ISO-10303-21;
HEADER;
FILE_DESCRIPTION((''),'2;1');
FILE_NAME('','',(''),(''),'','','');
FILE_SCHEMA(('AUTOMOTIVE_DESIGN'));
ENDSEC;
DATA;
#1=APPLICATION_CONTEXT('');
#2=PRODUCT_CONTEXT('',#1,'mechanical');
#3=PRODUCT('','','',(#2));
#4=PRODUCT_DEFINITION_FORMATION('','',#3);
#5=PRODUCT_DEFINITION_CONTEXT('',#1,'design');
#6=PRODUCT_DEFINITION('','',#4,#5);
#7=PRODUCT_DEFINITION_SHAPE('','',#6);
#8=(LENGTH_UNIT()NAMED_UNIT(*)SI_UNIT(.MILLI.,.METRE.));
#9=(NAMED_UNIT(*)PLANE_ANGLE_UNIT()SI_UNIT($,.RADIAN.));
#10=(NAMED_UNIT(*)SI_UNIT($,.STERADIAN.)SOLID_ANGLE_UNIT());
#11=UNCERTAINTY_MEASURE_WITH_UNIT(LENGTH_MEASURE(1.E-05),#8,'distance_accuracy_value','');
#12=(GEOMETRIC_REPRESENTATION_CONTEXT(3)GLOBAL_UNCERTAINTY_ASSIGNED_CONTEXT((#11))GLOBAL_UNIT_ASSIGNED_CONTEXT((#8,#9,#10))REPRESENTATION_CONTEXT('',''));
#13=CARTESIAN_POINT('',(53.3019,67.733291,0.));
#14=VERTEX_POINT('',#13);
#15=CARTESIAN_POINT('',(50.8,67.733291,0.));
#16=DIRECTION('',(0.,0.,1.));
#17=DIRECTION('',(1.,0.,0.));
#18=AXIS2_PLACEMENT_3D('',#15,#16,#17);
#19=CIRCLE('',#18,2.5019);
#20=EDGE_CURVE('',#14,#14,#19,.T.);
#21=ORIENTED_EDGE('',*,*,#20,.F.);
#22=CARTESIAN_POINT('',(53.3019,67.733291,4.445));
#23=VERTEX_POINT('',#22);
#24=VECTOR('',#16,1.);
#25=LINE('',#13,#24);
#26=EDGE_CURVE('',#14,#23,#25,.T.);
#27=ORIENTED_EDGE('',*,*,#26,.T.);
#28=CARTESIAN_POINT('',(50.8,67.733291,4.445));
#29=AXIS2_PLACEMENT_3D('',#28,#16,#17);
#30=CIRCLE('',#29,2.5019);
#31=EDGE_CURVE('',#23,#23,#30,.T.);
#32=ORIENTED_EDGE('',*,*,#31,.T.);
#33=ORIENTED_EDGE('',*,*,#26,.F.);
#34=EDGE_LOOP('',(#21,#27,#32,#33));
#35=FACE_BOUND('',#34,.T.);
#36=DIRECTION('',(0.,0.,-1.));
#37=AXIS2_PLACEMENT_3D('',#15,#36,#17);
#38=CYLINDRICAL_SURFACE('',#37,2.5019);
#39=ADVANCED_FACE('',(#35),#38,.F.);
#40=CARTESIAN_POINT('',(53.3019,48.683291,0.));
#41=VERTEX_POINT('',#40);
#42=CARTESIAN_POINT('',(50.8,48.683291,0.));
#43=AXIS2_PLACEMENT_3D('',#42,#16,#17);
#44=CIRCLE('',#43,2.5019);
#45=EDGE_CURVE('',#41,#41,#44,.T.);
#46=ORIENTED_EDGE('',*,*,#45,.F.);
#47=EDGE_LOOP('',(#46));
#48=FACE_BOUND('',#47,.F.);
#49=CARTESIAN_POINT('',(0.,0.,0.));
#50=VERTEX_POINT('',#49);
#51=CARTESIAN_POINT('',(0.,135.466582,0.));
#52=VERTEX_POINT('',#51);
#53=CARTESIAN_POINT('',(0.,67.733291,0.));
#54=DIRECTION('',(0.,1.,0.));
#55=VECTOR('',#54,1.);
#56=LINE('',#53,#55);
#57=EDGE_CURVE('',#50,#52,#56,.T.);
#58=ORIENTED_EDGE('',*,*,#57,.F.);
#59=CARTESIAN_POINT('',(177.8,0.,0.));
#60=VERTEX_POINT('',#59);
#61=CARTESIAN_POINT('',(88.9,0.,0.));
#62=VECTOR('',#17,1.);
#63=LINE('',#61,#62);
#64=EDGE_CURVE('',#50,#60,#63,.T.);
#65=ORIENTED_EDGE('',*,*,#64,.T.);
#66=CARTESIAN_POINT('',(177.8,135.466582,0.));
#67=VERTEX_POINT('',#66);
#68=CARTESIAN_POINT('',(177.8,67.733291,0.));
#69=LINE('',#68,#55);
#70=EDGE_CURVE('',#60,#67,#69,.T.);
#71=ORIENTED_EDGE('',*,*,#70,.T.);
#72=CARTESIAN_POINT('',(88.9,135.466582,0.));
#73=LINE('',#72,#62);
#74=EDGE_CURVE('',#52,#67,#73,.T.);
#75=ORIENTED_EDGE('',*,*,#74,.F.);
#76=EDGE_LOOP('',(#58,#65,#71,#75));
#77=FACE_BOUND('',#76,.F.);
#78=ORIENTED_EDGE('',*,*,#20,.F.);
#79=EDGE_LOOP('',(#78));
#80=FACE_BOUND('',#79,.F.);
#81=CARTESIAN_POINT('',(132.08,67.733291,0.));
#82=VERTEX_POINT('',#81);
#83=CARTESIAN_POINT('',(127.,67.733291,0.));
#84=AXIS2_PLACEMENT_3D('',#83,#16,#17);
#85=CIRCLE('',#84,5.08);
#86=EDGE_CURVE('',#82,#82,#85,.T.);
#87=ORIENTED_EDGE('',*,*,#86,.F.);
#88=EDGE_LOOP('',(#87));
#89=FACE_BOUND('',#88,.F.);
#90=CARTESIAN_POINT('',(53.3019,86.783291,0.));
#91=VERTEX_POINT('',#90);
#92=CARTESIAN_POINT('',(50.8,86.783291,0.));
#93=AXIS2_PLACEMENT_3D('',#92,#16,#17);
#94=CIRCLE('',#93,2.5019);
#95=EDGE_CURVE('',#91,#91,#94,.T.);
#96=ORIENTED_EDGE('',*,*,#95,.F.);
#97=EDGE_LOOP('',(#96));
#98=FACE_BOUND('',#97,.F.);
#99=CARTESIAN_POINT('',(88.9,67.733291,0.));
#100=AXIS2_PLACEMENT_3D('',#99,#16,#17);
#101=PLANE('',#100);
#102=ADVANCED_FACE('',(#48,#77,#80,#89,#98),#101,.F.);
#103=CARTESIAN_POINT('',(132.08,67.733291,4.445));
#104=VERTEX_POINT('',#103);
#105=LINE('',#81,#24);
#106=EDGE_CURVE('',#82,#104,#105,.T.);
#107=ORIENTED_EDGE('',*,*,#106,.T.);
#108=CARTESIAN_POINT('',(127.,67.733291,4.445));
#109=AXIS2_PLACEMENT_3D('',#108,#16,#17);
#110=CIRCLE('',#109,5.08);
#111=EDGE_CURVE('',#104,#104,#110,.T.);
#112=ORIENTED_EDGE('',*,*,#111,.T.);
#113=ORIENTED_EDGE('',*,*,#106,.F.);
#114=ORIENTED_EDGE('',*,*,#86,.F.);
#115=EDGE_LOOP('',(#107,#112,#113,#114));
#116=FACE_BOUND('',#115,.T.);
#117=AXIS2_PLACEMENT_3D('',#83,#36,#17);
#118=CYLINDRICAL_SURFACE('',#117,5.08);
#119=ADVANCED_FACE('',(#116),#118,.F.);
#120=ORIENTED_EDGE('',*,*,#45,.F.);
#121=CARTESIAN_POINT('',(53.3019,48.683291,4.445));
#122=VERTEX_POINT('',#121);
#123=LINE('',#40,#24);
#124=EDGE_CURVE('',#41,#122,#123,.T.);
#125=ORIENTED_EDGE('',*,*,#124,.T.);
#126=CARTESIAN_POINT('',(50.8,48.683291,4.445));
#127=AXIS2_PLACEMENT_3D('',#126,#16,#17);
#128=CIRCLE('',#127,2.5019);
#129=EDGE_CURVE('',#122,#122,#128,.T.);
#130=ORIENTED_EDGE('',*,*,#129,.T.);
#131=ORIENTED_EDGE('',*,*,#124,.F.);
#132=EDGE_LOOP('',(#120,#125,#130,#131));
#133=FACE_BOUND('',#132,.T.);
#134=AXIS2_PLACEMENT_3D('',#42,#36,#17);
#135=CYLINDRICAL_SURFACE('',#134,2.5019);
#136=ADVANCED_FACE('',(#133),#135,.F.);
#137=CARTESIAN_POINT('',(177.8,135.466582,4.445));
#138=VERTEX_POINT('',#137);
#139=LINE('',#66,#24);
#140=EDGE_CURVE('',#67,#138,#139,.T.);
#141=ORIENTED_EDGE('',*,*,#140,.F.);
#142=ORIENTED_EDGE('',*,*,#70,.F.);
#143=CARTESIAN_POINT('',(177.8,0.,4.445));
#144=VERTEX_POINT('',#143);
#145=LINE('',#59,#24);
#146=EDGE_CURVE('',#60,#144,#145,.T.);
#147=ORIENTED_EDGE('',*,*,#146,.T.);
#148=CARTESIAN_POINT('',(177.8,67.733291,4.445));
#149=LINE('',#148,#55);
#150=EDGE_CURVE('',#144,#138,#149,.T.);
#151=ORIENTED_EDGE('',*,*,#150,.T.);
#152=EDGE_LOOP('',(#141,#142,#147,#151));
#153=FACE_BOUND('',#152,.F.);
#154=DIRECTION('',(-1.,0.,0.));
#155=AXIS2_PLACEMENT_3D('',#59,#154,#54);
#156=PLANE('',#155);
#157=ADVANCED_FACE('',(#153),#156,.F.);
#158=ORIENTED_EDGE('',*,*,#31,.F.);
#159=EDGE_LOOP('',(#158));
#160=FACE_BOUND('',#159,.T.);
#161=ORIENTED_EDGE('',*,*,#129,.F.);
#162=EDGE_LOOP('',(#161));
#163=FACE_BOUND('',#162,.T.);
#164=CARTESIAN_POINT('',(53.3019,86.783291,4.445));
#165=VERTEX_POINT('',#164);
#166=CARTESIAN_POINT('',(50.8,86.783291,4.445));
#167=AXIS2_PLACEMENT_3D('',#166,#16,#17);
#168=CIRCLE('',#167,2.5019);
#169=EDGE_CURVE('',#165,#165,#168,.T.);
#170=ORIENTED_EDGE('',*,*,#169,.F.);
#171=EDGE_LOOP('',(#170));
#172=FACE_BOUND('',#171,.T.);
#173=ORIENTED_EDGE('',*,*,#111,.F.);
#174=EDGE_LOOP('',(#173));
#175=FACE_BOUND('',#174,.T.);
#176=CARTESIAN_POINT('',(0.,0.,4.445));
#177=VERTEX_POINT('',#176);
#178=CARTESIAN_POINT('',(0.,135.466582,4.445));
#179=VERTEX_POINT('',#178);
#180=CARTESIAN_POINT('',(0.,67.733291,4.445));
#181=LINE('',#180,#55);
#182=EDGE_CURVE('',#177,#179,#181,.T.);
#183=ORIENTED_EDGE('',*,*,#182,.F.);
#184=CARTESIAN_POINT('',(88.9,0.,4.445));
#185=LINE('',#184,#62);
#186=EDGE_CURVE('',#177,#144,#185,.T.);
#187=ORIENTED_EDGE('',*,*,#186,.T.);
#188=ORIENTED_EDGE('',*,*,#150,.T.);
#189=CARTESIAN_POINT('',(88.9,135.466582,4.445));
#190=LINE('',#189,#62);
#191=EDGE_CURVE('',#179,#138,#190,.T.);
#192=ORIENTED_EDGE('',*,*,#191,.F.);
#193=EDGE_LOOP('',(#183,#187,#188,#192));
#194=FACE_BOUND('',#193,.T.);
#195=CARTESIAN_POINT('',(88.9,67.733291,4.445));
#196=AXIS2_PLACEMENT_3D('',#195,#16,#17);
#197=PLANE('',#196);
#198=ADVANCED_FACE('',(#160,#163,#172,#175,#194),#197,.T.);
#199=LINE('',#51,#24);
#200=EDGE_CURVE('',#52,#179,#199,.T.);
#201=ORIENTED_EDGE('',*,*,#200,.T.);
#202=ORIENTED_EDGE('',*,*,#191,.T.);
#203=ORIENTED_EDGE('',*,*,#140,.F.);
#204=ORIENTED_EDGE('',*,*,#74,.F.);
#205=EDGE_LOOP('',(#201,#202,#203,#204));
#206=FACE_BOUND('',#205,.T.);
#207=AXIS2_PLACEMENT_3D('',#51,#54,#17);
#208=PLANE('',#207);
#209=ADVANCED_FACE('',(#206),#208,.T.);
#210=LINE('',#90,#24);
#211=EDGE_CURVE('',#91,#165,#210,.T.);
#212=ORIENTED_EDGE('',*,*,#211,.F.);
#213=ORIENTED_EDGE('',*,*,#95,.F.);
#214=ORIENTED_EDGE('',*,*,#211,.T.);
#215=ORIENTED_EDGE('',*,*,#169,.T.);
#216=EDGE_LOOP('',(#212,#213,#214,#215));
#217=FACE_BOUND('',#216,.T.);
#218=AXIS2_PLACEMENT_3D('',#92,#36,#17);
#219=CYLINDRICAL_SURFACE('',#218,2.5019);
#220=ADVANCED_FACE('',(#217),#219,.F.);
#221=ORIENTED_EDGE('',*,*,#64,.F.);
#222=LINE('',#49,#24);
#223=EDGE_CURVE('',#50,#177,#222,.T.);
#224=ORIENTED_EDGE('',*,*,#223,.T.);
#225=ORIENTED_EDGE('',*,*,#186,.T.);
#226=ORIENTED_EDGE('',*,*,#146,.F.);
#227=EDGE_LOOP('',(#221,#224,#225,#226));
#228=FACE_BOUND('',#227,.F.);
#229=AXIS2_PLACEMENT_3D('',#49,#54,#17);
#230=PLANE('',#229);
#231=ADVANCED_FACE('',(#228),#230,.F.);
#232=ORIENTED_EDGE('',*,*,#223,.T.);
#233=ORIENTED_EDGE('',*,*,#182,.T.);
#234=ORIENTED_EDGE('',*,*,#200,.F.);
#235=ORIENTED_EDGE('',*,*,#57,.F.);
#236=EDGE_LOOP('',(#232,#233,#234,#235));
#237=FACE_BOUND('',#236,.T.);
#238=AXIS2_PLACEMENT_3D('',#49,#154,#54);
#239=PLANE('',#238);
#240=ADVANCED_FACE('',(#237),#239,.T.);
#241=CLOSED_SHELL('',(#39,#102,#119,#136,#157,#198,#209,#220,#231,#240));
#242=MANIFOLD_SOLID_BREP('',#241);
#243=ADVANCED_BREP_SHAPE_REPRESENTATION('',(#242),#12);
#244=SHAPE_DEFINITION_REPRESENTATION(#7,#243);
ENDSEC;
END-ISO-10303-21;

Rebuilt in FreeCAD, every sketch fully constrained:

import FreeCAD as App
import Part
import Sketcher
from FreeCAD import Vector
Q = App.Units.Quantity


def add_polygon(sketch, points):
    """Adds a closed chain of lines whose ends are joined by coincident constraints."""
    first, n = sketch.GeometryCount, len(points)
    for a, b in zip(points, points[1:] + points[:1]):
        sketch.addGeometry(Part.LineSegment(App.Vector(*a, 0), App.Vector(*b, 0)), False)
    for i in range(n):
        sketch.addConstraint(Sketcher.Constraint("Coincident", first + i, 2, first + (i + 1) % n, 1))

doc = App.newDocument("Part")
body = doc.addObject("PartDesign::Body", "Body")

sketch1 = body.newObject("Sketcher::SketchObject", "Sketch")
sketch1.AttachmentSupport = (doc.getObject("XY_Plane"), [""])
sketch1.MapMode = "FlatFace"
add_polygon(sketch1, [(0, 135.5), (0, 0), (177.8, 0), (177.8, 135.5)])
sketch1.addGeometry(Part.Circle(Vector(50.8, 48.7, 0), Vector(0, 0, 1), 2.5), False)
sketch1.addGeometry(Part.Circle(Vector(50.8, 67.7, 0), Vector(0, 0, 1), 2.5), False)
sketch1.addGeometry(Part.Circle(Vector(127, 67.7, 0), Vector(0, 0, 1), 5.1), False)
sketch1.addGeometry(Part.Circle(Vector(50.8, 86.8, 0), Vector(0, 0, 1), 2.5), False)
sketch1.addConstraint([
    Sketcher.Constraint("Vertical", 0),
    Sketcher.Constraint("Horizontal", 1),
    Sketcher.Constraint("Vertical", 2),
    Sketcher.Constraint("Horizontal", 3),
    Sketcher.Constraint("Coincident", 0, 2, -1, 1),
    Sketcher.Constraint("Equal", 4, 5),
    Sketcher.Constraint("Equal", 5, 7),
    Sketcher.Constraint("Horizontal", 5, 3, 6, 3),
    Sketcher.Constraint("Vertical", 4, 3, 5, 3),
    Sketcher.Constraint("Vertical", 5, 3, 7, 3),
    Sketcher.Constraint("Diameter", 6, Q("0.4 in")),
    Sketcher.Constraint("DistanceX", 1, 1, 1, 2, Q("7 in")),
    Sketcher.Constraint("Diameter", 4, Q("0.197 in")),
    Sketcher.Constraint("DistanceX", -1, 1, 4, 3, Q("2 in")),
    Sketcher.Constraint("DistanceX", -1, 1, 6, 3, Q("5 in")),
    Sketcher.Constraint("DistanceY", 4, 3, 7, 3, Q("1.5 in")),
    Sketcher.Constraint("DistanceY", 4, 3, 5, 3, Q("0.75 in")),
    Sketcher.Constraint("DistanceY", 0, 2, 0, 1, 135.466582),
    Sketcher.Constraint("DistanceY", -1, 1, 4, 3, 48.683291),
])
pad1 = body.newObject("PartDesign::Pad", "Pad")
pad1.Profile = sketch1
pad1.Length = Q("0.175 in")

doc.recompute()
